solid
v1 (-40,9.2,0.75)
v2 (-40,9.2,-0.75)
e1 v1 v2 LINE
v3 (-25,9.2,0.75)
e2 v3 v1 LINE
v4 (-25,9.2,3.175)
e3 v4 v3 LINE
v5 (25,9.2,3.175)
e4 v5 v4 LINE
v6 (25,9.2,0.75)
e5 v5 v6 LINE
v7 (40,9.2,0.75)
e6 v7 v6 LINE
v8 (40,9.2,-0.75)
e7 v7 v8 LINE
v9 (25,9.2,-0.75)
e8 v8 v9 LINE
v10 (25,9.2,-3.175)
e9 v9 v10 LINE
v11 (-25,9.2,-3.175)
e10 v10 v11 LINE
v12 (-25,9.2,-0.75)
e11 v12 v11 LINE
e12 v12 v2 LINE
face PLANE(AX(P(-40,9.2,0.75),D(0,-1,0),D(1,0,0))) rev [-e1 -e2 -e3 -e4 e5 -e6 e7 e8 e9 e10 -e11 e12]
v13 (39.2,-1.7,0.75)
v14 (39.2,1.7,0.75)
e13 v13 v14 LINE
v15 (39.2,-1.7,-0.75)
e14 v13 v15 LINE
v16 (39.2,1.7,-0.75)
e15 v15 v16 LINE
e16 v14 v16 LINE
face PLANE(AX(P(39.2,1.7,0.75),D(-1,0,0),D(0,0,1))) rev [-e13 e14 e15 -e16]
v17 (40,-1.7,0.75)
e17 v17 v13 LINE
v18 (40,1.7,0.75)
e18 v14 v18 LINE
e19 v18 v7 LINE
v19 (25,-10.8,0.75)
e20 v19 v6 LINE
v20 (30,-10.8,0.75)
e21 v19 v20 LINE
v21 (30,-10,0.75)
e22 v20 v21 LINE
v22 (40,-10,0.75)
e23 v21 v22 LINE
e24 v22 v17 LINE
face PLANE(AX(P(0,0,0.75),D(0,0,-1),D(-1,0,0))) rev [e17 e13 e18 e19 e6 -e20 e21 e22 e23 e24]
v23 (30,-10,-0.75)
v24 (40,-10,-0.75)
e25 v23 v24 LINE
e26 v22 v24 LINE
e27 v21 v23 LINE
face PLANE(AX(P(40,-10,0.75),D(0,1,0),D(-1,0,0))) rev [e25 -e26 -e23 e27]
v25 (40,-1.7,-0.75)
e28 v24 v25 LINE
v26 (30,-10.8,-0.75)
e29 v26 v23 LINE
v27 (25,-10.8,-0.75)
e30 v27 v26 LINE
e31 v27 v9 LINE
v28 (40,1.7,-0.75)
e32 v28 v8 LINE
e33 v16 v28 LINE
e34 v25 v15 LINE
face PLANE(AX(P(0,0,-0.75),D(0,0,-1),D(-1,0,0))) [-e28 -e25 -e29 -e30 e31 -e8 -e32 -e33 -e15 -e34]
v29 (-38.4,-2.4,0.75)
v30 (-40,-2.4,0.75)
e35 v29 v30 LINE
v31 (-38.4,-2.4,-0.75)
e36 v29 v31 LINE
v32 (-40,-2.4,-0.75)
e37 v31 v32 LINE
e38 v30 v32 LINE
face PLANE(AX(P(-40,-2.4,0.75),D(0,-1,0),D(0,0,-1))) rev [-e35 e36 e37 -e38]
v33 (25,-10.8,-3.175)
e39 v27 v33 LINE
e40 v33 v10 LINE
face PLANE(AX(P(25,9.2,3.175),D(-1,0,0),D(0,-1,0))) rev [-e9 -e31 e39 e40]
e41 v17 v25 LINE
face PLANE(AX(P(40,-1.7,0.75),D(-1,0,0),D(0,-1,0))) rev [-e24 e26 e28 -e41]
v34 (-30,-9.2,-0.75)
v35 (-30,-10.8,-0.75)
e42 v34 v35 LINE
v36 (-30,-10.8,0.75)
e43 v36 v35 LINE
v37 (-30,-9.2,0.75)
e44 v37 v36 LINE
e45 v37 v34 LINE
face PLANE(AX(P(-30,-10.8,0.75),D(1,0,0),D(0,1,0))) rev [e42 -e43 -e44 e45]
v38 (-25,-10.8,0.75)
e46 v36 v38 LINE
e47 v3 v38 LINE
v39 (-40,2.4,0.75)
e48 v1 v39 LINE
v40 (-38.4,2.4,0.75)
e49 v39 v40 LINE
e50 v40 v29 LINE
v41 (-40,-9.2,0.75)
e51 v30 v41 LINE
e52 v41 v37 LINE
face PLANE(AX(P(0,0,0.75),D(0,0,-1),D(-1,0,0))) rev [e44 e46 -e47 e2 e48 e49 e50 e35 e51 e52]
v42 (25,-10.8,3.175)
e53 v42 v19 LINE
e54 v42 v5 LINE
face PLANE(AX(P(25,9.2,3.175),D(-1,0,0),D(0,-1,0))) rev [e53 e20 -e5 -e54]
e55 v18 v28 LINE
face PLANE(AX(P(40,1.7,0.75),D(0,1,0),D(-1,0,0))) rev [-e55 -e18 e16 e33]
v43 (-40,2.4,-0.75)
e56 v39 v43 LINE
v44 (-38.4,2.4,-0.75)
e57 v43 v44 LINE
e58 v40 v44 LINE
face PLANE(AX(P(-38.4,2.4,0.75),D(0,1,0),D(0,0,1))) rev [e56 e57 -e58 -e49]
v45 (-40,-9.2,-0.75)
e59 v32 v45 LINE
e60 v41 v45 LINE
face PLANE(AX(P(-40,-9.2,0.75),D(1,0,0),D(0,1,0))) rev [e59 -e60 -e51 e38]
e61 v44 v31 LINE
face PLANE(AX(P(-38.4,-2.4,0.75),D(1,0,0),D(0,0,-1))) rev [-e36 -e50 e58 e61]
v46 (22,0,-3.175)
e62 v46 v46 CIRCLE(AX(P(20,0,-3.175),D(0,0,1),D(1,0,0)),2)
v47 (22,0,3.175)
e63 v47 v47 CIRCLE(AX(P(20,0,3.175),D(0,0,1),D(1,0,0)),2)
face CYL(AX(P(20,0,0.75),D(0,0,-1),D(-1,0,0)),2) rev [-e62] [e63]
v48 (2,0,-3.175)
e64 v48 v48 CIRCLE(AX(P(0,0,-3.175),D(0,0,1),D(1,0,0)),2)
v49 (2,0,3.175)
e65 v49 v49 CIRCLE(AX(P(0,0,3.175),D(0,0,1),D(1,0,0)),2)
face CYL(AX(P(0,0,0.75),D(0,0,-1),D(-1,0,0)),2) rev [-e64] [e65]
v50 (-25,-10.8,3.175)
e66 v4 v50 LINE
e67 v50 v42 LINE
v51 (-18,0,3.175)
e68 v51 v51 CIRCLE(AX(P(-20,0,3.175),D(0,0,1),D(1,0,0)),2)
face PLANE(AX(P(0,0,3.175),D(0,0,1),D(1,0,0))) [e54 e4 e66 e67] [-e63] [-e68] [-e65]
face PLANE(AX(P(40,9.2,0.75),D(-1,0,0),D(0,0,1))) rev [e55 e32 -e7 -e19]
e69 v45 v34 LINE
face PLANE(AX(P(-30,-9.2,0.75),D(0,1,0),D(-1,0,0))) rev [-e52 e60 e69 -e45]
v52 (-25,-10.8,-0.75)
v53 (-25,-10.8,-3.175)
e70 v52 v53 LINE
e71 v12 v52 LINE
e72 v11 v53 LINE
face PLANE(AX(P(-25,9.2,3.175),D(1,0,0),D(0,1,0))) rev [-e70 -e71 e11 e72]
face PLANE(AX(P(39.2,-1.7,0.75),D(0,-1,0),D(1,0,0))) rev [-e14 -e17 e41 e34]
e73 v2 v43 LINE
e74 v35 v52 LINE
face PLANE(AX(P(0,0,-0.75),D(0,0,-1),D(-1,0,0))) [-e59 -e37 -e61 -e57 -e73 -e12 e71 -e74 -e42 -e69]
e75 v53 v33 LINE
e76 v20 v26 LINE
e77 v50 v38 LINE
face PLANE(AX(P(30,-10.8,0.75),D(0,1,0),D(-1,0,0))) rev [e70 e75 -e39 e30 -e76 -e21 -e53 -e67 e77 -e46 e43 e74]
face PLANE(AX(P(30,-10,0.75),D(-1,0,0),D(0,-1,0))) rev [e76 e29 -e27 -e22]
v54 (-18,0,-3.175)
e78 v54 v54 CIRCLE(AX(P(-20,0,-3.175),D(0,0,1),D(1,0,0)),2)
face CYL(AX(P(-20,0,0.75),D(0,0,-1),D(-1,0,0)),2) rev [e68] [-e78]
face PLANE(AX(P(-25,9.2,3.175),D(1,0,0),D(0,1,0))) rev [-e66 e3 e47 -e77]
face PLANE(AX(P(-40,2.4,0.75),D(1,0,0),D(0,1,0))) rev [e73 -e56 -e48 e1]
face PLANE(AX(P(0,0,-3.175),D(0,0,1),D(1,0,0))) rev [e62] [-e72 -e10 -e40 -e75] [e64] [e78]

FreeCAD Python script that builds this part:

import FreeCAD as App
import Part
import Sketcher
from FreeCAD import Vector
Q = App.Units.Quantity


def add_polygon(sketch, points):
    """Adds a closed chain of lines whose ends are joined by coincident constraints."""
    first, n = sketch.GeometryCount, len(points)
    for a, b in zip(points, points[1:] + points[:1]):
        sketch.addGeometry(Part.LineSegment(App.Vector(*a, 0), App.Vector(*b, 0)), False)
    for i in range(n):
        sketch.addConstraint(Sketcher.Constraint("Coincident", first + i, 2, first + (i + 1) % n, 1))

doc = App.newDocument("Part")
body = doc.addObject("PartDesign::Body", "Body")

# Sketch on XY plane
sketch1 = body.newObject("Sketcher::SketchObject", "Sketch")
sketch1.AttachmentSupport = (doc.getObject("XY_Plane"), [""])
sketch1.MapMode = "FlatFace"
add_polygon(sketch1, [(40, 9.2), (-40, 9.2), (-40, 2.4), (-38.4, 2.4), (-38.4, -2.4), (-40, -2.4), (-40, -9.2), (-30, -9.2), (-30, -10.8), (30, -10.8), (30, -10), (40, -10), (40, -1.7), (39.2, -1.7), (39.2, 1.7), (40, 1.7)])  # lines 0-15
sketch1.addGeometry(Part.Circle(Vector(20, 0, 0), Vector(0, 0, 1), 2), False)  # 16
sketch1.addGeometry(Part.Circle(Vector(0, 0, 0), Vector(0, 0, 1), 2), False)  # 17
sketch1.addGeometry(Part.Circle(Vector(-20, 0, 0), Vector(0, 0, 1), 2), False)  # 18
sketch1.addConstraint([
    Sketcher.Constraint("Horizontal", 0),
    Sketcher.Constraint("Vertical", 1),
    Sketcher.Constraint("Horizontal", 2),
    Sketcher.Constraint("Vertical", 3),
    Sketcher.Constraint("Horizontal", 4),
    Sketcher.Constraint("Vertical", 5),
    Sketcher.Constraint("Horizontal", 6),
    Sketcher.Constraint("Vertical", 7),
    Sketcher.Constraint("Horizontal", 8),
    Sketcher.Constraint("Vertical", 9),
    Sketcher.Constraint("Horizontal", 10),
    Sketcher.Constraint("Vertical", 11),
    Sketcher.Constraint("Horizontal", 12),
    Sketcher.Constraint("Vertical", 13),
    Sketcher.Constraint("Horizontal", 14),
    Sketcher.Constraint("Vertical", 15),
    Sketcher.Constraint("Coincident", 17, 3, -1, 1),
    Sketcher.Constraint("Equal", 16, 17),
    Sketcher.Constraint("Equal", 17, 18),
    Sketcher.Constraint("Symmetric", 16, 3, 18, 3, -1, 1),
    Sketcher.Constraint("Symmetric", 5, 2, 15, 2, -1, 1),
    Sketcher.Constraint("Symmetric", 1, 2, 4, 2, -1),
    Sketcher.Constraint("Symmetric", 11, 2, 14, 2, -1),
    Sketcher.Constraint("PointOnObject", 16, 3, -1),
    Sketcher.Constraint("Equal", 6, 10),
    Sketcher.Constraint("Equal", 4, 7),
    Sketcher.Constraint("Equal", 14, 9),
    Sketcher.Constraint("Diameter", 16, Q("4 mm")),
    Sketcher.Constraint("DistanceX", 0, 2, 0, 1, Q("80 mm")),
    Sketcher.Constraint("DistanceX", 6, 1, 6, 2, Q("10 mm")),
    Sketcher.Constraint("DistanceX", 2, 1, 2, 2, Q("1.6 mm")),
    Sketcher.Constraint("DistanceX", 12, 2, 12, 1, Q("0.8 mm")),
    Sketcher.Constraint("DistanceY", 1, 2, 1, 1, Q("6.8 mm")),
    Sketcher.Constraint("DistanceY", 3, 2, 3, 1, Q("4.8 mm")),
    Sketcher.Constraint("DistanceY", 11, 1, 11, 2, Q("8.3 mm")),
    Sketcher.Constraint("DistanceX", -1, 1, 16, 3, Q("20 mm")),
])
pad1 = body.newObject("PartDesign::Pad", "Pad")
pad1.Profile = sketch1
pad1.Length = 1.5
pad1.Midplane = True

# Sketch on XY plane
sketch2 = body.newObject("Sketcher::SketchObject", "Sketch001")
sketch2.AttachmentSupport = (doc.getObject("XY_Plane"), [""])
sketch2.MapMode = "FlatFace"
add_polygon(sketch2, [(-25, 9.2), (-25, -10.8), (25, -10.8), (25, 9.2)])  # lines 0-3
sketch2.addGeometry(Part.Circle(Vector(-20, 0, 0), Vector(0, 0, 1), 2), False)  # 4
sketch2.addGeometry(Part.Circle(Vector(0, 0, 0), Vector(0, 0, 1), 2), False)  # 5
sketch2.addGeometry(Part.Circle(Vector(20, 0, 0), Vector(0, 0, 1), 2), False)  # 6
sketch2.addConstraint([
    Sketcher.Constraint("Vertical", 0),
    Sketcher.Constraint("Horizontal", 1),
    Sketcher.Constraint("Vertical", 2),
    Sketcher.Constraint("Horizontal", 3),
    Sketcher.Constraint("Coincident", 5, 3, -1, 1),
    Sketcher.Constraint("Equal", 4, 5),
    Sketcher.Constraint("Equal", 5, 6),
    Sketcher.Constraint("Symmetric", 4, 3, 6, 3, -1, 1),
    Sketcher.Constraint("PointOnObject", 4, 3, -1),
    Sketcher.Constraint("Diameter", 4, Q("4 mm")),
    Sketcher.Constraint("DistanceX", 1, 1, 1, 2, Q("50 mm")),
    Sketcher.Constraint("DistanceY", 0, 2, 0, 1, Q("20 mm")),
    Sketcher.Constraint("DistanceX", 4, 3, -1, 1, Q("20 mm")),
    Sketcher.Constraint("DistanceX", 0, 2, -1, 1, Q("25 mm")),
    Sketcher.Constraint("DistanceY", 0, 2, -1, 1, Q("10.8 mm")),
])
pad2 = body.newObject("PartDesign::Pad", "Pad001")
pad2.Profile = sketch2
pad2.Length = 6.35
pad2.Midplane = True

doc.recompute()
